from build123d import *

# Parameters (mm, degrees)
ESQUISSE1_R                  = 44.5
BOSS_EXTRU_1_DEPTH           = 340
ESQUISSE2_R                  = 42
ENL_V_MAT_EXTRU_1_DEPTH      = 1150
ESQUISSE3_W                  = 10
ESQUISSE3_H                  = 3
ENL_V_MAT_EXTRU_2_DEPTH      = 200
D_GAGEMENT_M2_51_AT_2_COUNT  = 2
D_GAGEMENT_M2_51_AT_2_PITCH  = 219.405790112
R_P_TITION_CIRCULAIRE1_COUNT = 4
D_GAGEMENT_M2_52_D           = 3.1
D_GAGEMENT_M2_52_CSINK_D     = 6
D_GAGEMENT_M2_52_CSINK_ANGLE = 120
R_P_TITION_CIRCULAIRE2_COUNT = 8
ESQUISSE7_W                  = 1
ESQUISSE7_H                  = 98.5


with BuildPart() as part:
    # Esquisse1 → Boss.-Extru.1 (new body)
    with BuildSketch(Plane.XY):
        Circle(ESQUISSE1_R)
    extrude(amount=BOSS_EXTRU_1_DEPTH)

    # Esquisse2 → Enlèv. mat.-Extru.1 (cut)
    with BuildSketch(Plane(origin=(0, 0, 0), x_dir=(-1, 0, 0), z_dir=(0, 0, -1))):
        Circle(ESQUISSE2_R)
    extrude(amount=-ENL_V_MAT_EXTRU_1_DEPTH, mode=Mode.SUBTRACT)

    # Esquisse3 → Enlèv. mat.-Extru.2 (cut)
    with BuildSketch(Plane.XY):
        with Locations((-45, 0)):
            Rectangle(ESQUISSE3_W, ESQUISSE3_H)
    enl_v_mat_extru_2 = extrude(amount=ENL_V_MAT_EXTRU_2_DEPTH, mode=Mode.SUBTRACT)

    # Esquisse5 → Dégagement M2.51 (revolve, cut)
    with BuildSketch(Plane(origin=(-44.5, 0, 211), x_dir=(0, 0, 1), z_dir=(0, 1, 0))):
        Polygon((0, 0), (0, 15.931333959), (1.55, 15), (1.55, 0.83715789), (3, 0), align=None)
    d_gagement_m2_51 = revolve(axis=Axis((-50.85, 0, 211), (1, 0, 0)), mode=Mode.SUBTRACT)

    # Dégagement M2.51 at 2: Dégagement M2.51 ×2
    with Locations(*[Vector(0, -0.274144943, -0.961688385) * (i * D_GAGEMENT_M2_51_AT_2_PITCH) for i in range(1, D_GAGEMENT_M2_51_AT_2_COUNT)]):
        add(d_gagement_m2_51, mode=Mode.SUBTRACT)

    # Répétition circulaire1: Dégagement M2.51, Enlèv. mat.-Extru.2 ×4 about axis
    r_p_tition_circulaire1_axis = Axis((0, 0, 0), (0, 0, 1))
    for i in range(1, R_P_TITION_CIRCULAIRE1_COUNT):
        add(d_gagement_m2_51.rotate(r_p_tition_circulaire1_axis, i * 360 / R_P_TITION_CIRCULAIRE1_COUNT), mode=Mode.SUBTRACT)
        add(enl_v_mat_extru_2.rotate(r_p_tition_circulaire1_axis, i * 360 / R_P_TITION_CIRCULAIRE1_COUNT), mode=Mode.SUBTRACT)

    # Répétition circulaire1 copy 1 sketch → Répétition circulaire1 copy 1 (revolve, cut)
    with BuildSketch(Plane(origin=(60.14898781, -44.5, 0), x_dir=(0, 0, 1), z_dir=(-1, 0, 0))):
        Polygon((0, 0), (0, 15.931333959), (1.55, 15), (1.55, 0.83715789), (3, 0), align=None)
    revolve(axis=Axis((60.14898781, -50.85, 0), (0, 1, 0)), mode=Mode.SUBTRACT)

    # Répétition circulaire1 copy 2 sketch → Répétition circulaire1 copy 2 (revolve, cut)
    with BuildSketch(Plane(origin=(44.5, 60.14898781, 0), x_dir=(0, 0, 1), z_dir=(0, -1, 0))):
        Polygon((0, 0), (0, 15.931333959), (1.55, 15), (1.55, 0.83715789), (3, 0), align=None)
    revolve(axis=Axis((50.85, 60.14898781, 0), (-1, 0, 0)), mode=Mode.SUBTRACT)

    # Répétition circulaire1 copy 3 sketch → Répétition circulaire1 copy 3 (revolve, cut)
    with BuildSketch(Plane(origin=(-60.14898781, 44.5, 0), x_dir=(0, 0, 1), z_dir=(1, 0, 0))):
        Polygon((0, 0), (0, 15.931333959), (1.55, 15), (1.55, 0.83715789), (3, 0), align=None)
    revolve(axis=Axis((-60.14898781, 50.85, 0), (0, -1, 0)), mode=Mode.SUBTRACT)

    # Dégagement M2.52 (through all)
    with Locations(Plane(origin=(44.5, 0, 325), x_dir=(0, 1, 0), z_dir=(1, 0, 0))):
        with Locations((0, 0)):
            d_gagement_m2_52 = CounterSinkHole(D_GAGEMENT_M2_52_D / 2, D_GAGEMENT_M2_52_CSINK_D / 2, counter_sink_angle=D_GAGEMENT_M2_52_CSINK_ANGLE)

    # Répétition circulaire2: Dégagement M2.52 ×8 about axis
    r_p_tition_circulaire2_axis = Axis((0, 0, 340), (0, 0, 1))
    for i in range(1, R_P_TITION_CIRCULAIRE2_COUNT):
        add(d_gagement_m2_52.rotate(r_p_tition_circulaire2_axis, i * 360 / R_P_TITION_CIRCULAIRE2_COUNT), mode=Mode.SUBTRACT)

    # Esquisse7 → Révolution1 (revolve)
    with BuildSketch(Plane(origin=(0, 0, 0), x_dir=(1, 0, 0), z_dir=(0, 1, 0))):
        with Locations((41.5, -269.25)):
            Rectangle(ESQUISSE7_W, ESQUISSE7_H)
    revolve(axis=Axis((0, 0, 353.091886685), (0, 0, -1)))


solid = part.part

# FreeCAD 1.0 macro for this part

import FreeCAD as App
import Part
import Sketcher
from FreeCAD import Vector
Q = App.Units.Quantity

doc = App.newDocument("Part")
body = doc.addObject("PartDesign::Body", "Body")

# Sketch on XY plane
sketch1 = body.newObject("Sketcher::SketchObject", "Sketch")
sketch1.AttachmentSupport = (doc.getObject("XY_Plane"), [""])
sketch1.MapMode = "FlatFace"
sketch1.addGeometry(Part.Circle(Vector(0, 0, 0), Vector(0, 0, 1), 44.5), False)
sketch1.addConstraint([
    Sketcher.Constraint("Coincident", 0, 3, -1, 1),
    Sketcher.Constraint("Diameter", 0, Q("89 mm")),
])
pad1 = body.newObject("PartDesign::Pad", "Pad")
pad1.Profile = sketch1
pad1.Length = 340

# Sketch on XY plane
sketch2 = body.newObject("Sketcher::SketchObject", "Sketch001")
sketch2.AttachmentSupport = (doc.getObject("XY_Plane"), [""])
sketch2.MapMode = "FlatFace"
sketch2.addGeometry(Part.Circle(Vector(0, 0, 0), Vector(0, 0, 1), 42), False)
sketch2.addConstraint([
    Sketcher.Constraint("Coincident", 0, 3, -1, 1),
    Sketcher.Constraint("Diameter", 0, Q("84 mm")),
])
pocket1 = body.newObject("PartDesign::Pocket", "Pocket")
pocket1.Profile = sketch2
pocket1.Length = 1150
pocket1.Reversed = True

# Sketch on XY plane
sketch3 = body.newObject("Sketcher::SketchObject", "Sketch002")
sketch3.AttachmentSupport = (doc.getObject("XY_Plane"), [""])
sketch3.MapMode = "FlatFace"
sketch3.addGeometry([
    Part.LineSegment(Vector(-50, 1.5, 0), Vector(-50, -1.5, 0)),
    Part.LineSegment(Vector(-50, -1.5, 0), Vector(-40, -1.5, 0)),
    Part.LineSegment(Vector(-40, -1.5, 0), Vector(-40, 1.5, 0)),
    Part.LineSegment(Vector(-40, 1.5, 0), Vector(-50, 1.5, 0)),
], False)
sketch3.addConstraint([
    Sketcher.Constraint("Coincident", 0, 2, 1, 1),
    Sketcher.Constraint("Coincident", 1, 2, 2, 1),
    Sketcher.Constraint("Coincident", 2, 2, 3, 1),
    Sketcher.Constraint("Coincident", 3, 2, 0, 1),
    Sketcher.Constraint("Vertical", 0),
    Sketcher.Constraint("Horizontal", 1),
    Sketcher.Constraint("Vertical", 2),
    Sketcher.Constraint("Horizontal", 3),
    Sketcher.Constraint("DistanceX", 1, 1, 1, 2, Q("10 mm")),
    Sketcher.Constraint("DistanceY", 0, 2, 0, 1, Q("3 mm")),
    Sketcher.Constraint("DistanceX", 0, 2, -1, 1, Q("50 mm")),
    Sketcher.Constraint("DistanceY", 0, 2, -1, 1, Q("1.5 mm")),
])
pocket2 = body.newObject("PartDesign::Pocket", "Pocket001")
pocket2.Profile = sketch3
pocket2.Length = 200
pocket2.Reversed = True

# Sketch on XZ plane
sketch4 = body.newObject("Sketcher::SketchObject", "Sketch003")
sketch4.AttachmentSupport = (doc.getObject("XZ_Plane"), [""])
sketch4.MapMode = "FlatFace"
sketch4.addGeometry([
    Part.LineSegment(Vector(-28.568666, 211, 0), Vector(-44.5, 211, 0)),  # 0
    Part.LineSegment(Vector(-44.5, 211, 0), Vector(-44.5, 214, 0)),  # 1
    Part.LineSegment(Vector(-44.5, 214, 0), Vector(-43.662842, 212.55, 0)),  # 2
    Part.LineSegment(Vector(-43.662842, 212.55, 0), Vector(-29.5, 212.55, 0)),  # 3
    Part.LineSegment(Vector(-29.5, 212.55, 0), Vector(-28.568666, 211, 0)),  # 4
], False)
sketch4.addGeometry(Part.LineSegment(Vector(-44.5, 211, 0), Vector(-28.568666, 211, 0)), True)  # axis
sketch4.addConstraint([
    Sketcher.Constraint("Coincident", 0, 2, 1, 1),
    Sketcher.Constraint("Coincident", 1, 2, 2, 1),
    Sketcher.Constraint("Coincident", 2, 2, 3, 1),
    Sketcher.Constraint("Coincident", 3, 2, 4, 1),
    Sketcher.Constraint("Coincident", 4, 2, 0, 1),
    Sketcher.Constraint("Horizontal", 0),
    Sketcher.Constraint("Vertical", 1),
    Sketcher.Constraint("Horizontal", 3),
    Sketcher.Constraint("Horizontal", 5),
    Sketcher.Constraint("Coincident", 5, 1, 0, 2),
    Sketcher.Constraint("Equal", 0, 5),
    Sketcher.Constraint("DistanceY", 1, 1, 1, 2, Q("3 mm")),
    Sketcher.Constraint("Angle", 2, Q("-60 deg")),
    Sketcher.Constraint("Angle", 4, Q("-59 deg")),
    Sketcher.Constraint("DistanceY", -1, 1, 0, 2, Q("211 mm")),
    Sketcher.Constraint("DistanceX", 1, 2, 3, 2, Q("15 mm")),
    Sketcher.Constraint("DistanceX", 0, 2, -1, 1, Q("44.5 mm")),
    Sketcher.Constraint("DistanceY", -1, 1, 2, 2, Q("212.55 mm")),
])
groove = body.newObject("PartDesign::Groove", "Groove")
groove.Profile = sketch4
groove.ReferenceAxis = (sketch4, ["Axis0"])
groove.Angle = 360
doc.recompute()

datumline = body.newObject("PartDesign::Line", "DatumLine")
datumline.Placement = App.Placement(Vector(0, 0, 0), App.Rotation(Vector(0, 0, 1), Vector(0, -0.274144943, -0.961688385)))
linearpattern = body.newObject("PartDesign::LinearPattern", "LinearPattern")
linearpattern.Originals = [groove]
linearpattern.Direction = (datumline, [""])
linearpattern.Mode = "offset"
linearpattern.Offset = 219.40579
linearpattern.Occurrences = 2
body.Tip = linearpattern
doc.recompute()

polarpattern = body.newObject("PartDesign::PolarPattern", "PolarPattern")
polarpattern.Originals = [groove, pocket2]
polarpattern.Axis = (doc.getObject("Z_Axis"), [""])
polarpattern.Angle = 360
polarpattern.Occurrences = 4
body.Tip = polarpattern

# Sketch on YZ plane
sketch5 = body.newObject("Sketcher::SketchObject", "Sketch004")
sketch5.AttachmentSupport = (doc.getObject("YZ_Plane"), [""])
sketch5.MapMode = "FlatFace"
sketch5.AttachmentOffset = App.Placement(Vector(0, 0, 60.148988), App.Rotation())
sketch5.addGeometry([
    Part.LineSegment(Vector(-28.568666, 0, 0), Vector(-44.5, 0, 0)),  # 0
    Part.LineSegment(Vector(-44.5, 0, 0), Vector(-44.5, 3, 0)),  # 1
    Part.LineSegment(Vector(-44.5, 3, 0), Vector(-43.662842, 1.55, 0)),  # 2
    Part.LineSegment(Vector(-43.662842, 1.55, 0), Vector(-29.5, 1.55, 0)),  # 3
    Part.LineSegment(Vector(-29.5, 1.55, 0), Vector(-28.568666, 0, 0)),  # 4
], False)
sketch5.addConstraint([
    Sketcher.Constraint("Coincident", 0, 2, 1, 1),
    Sketcher.Constraint("Coincident", 1, 2, 2, 1),
    Sketcher.Constraint("Coincident", 2, 2, 3, 1),
    Sketcher.Constraint("Coincident", 3, 2, 4, 1),
    Sketcher.Constraint("Coincident", 4, 2, 0, 1),
    Sketcher.Constraint("Horizontal", 0),
    Sketcher.Constraint("Vertical", 1),
    Sketcher.Constraint("Horizontal", 3),
    Sketcher.Constraint("PointOnObject", 0, 2, -1),
    Sketcher.Constraint("DistanceY", 1, 1, 1, 2, Q("3 mm")),
    Sketcher.Constraint("Angle", 2, Q("-60 deg")),
    Sketcher.Constraint("Angle", 4, Q("-59 deg")),
    Sketcher.Constraint("DistanceX", 1, 2, 3, 2, Q("15 mm")),
    Sketcher.Constraint("DistanceX", 0, 2, -1, 1, Q("44.5 mm")),
    Sketcher.Constraint("DistanceY", -1, 1, 2, 2, Q("1.55 mm")),
])
groove2 = body.newObject("PartDesign::Groove", "Groove001")
groove2.Profile = sketch5
groove2.ReferenceAxis = (sketch5, ["H_Axis"])
groove2.Angle = 360

# Sketch on XZ plane
sketch6 = body.newObject("Sketcher::SketchObject", "Sketch005")
sketch6.AttachmentSupport = (doc.getObject("XZ_Plane"), [""])
sketch6.MapMode = "FlatFace"
sketch6.AttachmentOffset = App.Placement(Vector(0, 0, -60.148988), App.Rotation())
sketch6.addGeometry([
    Part.LineSegment(Vector(28.568666, 0, 0), Vector(44.5, 0, 0)),  # 0
    Part.LineSegment(Vector(44.5, 0, 0), Vector(44.5, 3, 0)),  # 1
    Part.LineSegment(Vector(44.5, 3, 0), Vector(43.662842, 1.55, 0)),  # 2
    Part.LineSegment(Vector(43.662842, 1.55, 0), Vector(29.5, 1.55, 0)),  # 3
    Part.LineSegment(Vector(29.5, 1.55, 0), Vector(28.568666, 0, 0)),  # 4
], False)
sketch6.addConstraint([
    Sketcher.Constraint("Coincident", 0, 2, 1, 1),
    Sketcher.Constraint("Coincident", 1, 2, 2, 1),
    Sketcher.Constraint("Coincident", 2, 2, 3, 1),
    Sketcher.Constraint("Coincident", 3, 2, 4, 1),
    Sketcher.Constraint("Coincident", 4, 2, 0, 1),
    Sketcher.Constraint("Horizontal", 0),
    Sketcher.Constraint("Vertical", 1),
    Sketcher.Constraint("Horizontal", 3),
    Sketcher.Constraint("PointOnObject", 0, 2, -1),
    Sketcher.Constraint("DistanceY", 1, 1, 1, 2, Q("3 mm")),
    Sketcher.Constraint("Angle", 2, Q("-120 deg")),
    Sketcher.Constraint("Angle", 4, Q("-121 deg")),
    Sketcher.Constraint("DistanceX", 3, 2, 1, 2, Q("15 mm")),
    Sketcher.Constraint("DistanceX", -1, 1, 0, 2, Q("44.5 mm")),
    Sketcher.Constraint("DistanceY", -1, 1, 2, 2, Q("1.55 mm")),
])
groove3 = body.newObject("PartDesign::Groove", "Groove002")
groove3.Profile = sketch6
groove3.ReferenceAxis = (sketch6, ["H_Axis"])
groove3.Angle = 360

# Sketch on YZ plane
sketch7 = body.newObject("Sketcher::SketchObject", "Sketch006")
sketch7.AttachmentSupport = (doc.getObject("YZ_Plane"), [""])
sketch7.MapMode = "FlatFace"
sketch7.AttachmentOffset = App.Placement(Vector(0, 0, -60.148988), App.Rotation())
sketch7.addGeometry([
    Part.LineSegment(Vector(28.568666, 0, 0), Vector(44.5, 0, 0)),  # 0
    Part.LineSegment(Vector(44.5, 0, 0), Vector(44.5, 3, 0)),  # 1
    Part.LineSegment(Vector(44.5, 3, 0), Vector(43.662842, 1.55, 0)),  # 2
    Part.LineSegment(Vector(43.662842, 1.55, 0), Vector(29.5, 1.55, 0)),  # 3
    Part.LineSegment(Vector(29.5, 1.55, 0), Vector(28.568666, 0, 0)),  # 4
], False)
sketch7.addConstraint([
    Sketcher.Constraint("Coincident", 0, 2, 1, 1),
    Sketcher.Constraint("Coincident", 1, 2, 2, 1),
    Sketcher.Constraint("Coincident", 2, 2, 3, 1),
    Sketcher.Constraint("Coincident", 3, 2, 4, 1),
    Sketcher.Constraint("Coincident", 4, 2, 0, 1),
    Sketcher.Constraint("Horizontal", 0),
    Sketcher.Constraint("Vertical", 1),
    Sketcher.Constraint("Horizontal", 3),
    Sketcher.Constraint("PointOnObject", 0, 2, -1),
    Sketcher.Constraint("DistanceY", 1, 1, 1, 2, Q("3 mm")),
    Sketcher.Constraint("Angle", 2, Q("-120 deg")),
    Sketcher.Constraint("Angle", 4, Q("-121 deg")),
    Sketcher.Constraint("DistanceX", 3, 2, 1, 2, Q("15 mm")),
    Sketcher.Constraint("DistanceX", -1, 1, 0, 2, Q("44.5 mm")),
    Sketcher.Constraint("DistanceY", -1, 1, 2, 2, Q("1.55 mm")),
])
groove4 = body.newObject("PartDesign::Groove", "Groove003")
groove4.Profile = sketch7
groove4.ReferenceAxis = (sketch7, ["H_Axis"])
groove4.Angle = 360

# Sketch on YZ plane
sketch8 = body.newObject("Sketcher::SketchObject", "Sketch007")
sketch8.AttachmentSupport = (doc.getObject("YZ_Plane"), [""])
sketch8.MapMode = "FlatFace"
sketch8.AttachmentOffset = App.Placement(Vector(0, 0, 44.5), App.Rotation())
sketch8.addGeometry(Part.Circle(Vector(0, 325, 0), Vector(0, 0, 1), 1.55), False)
sketch8.addConstraint([
    Sketcher.Constraint("PointOnObject", 0, 3, -2),
    Sketcher.Constraint("Diameter", 0, Q("3.1 mm")),
    Sketcher.Constraint("DistanceY", -1, 1, 0, 3, Q("325 mm")),
])
doc.recompute()
hole = body.newObject("PartDesign::Hole", "Hole")
hole.Profile = sketch8
hole.ThreadType = "None"
hole.Diameter = 3.1
hole.DepthType = "ThroughAll"
hole.HoleCutType = "Countersink"
hole.HoleCutDiameter = 6
hole.HoleCutCountersinkAngle = 120
doc.recompute()

polarpattern2 = body.newObject("PartDesign::PolarPattern", "PolarPattern001")
polarpattern2.Originals = [hole]
polarpattern2.Axis = (doc.getObject("Z_Axis"), [""])
polarpattern2.Angle = 360
polarpattern2.Occurrences = 8
body.Tip = polarpattern2

# Sketch on XZ plane
sketch9 = body.newObject("Sketcher::SketchObject", "Sketch008")
sketch9.AttachmentSupport = (doc.getObject("XZ_Plane"), [""])
sketch9.MapMode = "FlatFace"
sketch9.addGeometry([
    Part.LineSegment(Vector(41, 220, 0), Vector(41, 318.5, 0)),
    Part.LineSegment(Vector(41, 318.5, 0), Vector(42, 318.5, 0)),
    Part.LineSegment(Vector(42, 318.5, 0), Vector(42, 220, 0)),
    Part.LineSegment(Vector(42, 220, 0), Vector(41, 220, 0)),
], False)
sketch9.addConstraint([
    Sketcher.Constraint("Coincident", 0, 2, 1, 1),
    Sketcher.Constraint("Coincident", 1, 2, 2, 1),
    Sketcher.Constraint("Coincident", 2, 2, 3, 1),
    Sketcher.Constraint("Coincident", 3, 2, 0, 1),
    Sketcher.Constraint("Vertical", 0),
    Sketcher.Constraint("Horizontal", 1),
    Sketcher.Constraint("Vertical", 2),
    Sketcher.Constraint("Horizontal", 3),
    Sketcher.Constraint("DistanceX", 1, 1, 1, 2, Q("1 mm")),
    Sketcher.Constraint("DistanceY", 0, 1, 0, 2, Q("98.5 mm")),
    Sketcher.Constraint("DistanceX", -1, 1, 0, 2, Q("41 mm")),
    Sketcher.Constraint("DistanceY", -1, 1, 2, 2, Q("220 mm")),
])
revolution = body.newObject("PartDesign::Revolution", "Revolution")
revolution.Profile = sketch9
revolution.ReferenceAxis = (sketch9, ["V_Axis"])
revolution.Angle = 360

doc.recompute()
